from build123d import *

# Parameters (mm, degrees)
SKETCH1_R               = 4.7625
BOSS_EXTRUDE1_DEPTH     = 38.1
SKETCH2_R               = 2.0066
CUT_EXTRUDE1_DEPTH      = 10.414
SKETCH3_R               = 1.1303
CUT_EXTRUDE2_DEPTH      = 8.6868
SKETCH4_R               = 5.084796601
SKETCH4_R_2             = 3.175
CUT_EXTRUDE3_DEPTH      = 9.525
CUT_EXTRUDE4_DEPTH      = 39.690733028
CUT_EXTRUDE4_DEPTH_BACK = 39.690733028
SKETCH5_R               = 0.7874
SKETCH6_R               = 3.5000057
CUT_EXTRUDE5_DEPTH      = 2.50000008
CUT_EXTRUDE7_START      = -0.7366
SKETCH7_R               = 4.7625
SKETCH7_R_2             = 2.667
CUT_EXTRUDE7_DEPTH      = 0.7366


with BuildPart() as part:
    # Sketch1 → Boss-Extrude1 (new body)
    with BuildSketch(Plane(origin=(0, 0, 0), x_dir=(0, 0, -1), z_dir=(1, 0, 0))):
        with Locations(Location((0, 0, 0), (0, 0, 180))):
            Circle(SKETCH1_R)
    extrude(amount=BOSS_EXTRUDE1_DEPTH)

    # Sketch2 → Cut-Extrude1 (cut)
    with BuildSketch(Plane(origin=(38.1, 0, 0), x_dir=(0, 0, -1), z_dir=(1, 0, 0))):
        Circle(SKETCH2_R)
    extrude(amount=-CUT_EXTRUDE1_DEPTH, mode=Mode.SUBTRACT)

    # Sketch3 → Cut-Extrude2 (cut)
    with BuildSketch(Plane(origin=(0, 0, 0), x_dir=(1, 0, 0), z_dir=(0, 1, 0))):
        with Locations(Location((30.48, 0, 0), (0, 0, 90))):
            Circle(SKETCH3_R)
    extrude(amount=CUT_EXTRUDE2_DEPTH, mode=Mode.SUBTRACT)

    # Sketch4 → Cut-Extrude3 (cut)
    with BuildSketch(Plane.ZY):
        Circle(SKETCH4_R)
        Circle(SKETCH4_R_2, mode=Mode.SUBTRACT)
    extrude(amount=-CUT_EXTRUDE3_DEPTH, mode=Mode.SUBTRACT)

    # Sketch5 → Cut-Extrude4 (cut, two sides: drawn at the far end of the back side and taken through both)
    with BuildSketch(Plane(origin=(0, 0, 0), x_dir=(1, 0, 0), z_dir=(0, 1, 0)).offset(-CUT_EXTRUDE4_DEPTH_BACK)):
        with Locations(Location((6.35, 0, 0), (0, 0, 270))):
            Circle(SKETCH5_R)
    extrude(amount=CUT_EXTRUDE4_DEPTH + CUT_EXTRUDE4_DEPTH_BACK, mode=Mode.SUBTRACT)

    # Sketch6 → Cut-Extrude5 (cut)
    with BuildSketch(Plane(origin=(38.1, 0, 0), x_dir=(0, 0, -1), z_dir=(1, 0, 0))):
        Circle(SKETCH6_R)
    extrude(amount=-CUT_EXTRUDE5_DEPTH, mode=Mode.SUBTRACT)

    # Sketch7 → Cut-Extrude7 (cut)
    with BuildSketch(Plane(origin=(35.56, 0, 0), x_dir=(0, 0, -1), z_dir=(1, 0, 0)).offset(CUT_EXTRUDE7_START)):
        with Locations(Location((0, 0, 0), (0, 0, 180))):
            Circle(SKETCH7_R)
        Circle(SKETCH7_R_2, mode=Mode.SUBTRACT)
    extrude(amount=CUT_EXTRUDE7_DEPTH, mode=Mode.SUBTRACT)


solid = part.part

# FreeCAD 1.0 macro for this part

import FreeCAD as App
import Part
import Sketcher
from FreeCAD import Vector
Q = App.Units.Quantity

doc = App.newDocument("Part")
body = doc.addObject("PartDesign::Body", "Body")

# Sketch on YZ plane
sketch1 = body.newObject("Sketcher::SketchObject", "Sketch")
sketch1.AttachmentSupport = (doc.getObject("YZ_Plane"), [""])
sketch1.MapMode = "FlatFace"
sketch1.addGeometry(Part.Circle(Vector(0, 0, 0), Vector(0, 0, 1), 4.8), False)
sketch1.addConstraint(Sketcher.Constraint("Coincident", 0, 3, -1, 1))
sketch1.addConstraint(Sketcher.Constraint("Diameter", 0, Q("0.375 in")))
pad1 = body.newObject("PartDesign::Pad", "Pad")
pad1.Profile = sketch1
pad1.Length = Q("1.5 in")

# Sketch on YZ plane
sketch2 = body.newObject("Sketcher::SketchObject", "Sketch001")
sketch2.AttachmentSupport = (doc.getObject("YZ_Plane"), [""])
sketch2.MapMode = "FlatFace"
sketch2.AttachmentOffset = App.Placement(Vector(0, 0, 1.5 * 25.4), App.Rotation())
sketch2.addGeometry(Part.Circle(Vector(0, 0, 0), Vector(0, 0, 1), 2), False)
sketch2.addConstraint(Sketcher.Constraint("Coincident", 0, 3, -1, 1))
sketch2.addConstraint(Sketcher.Constraint("Diameter", 0, Q("0.158 in")))
pocket1 = body.newObject("PartDesign::Pocket", "Pocket")
pocket1.Profile = sketch2
pocket1.Length = Q("0.41 in")

# Sketch on XZ plane
sketch3 = body.newObject("Sketcher::SketchObject", "Sketch002")
sketch3.AttachmentSupport = (doc.getObject("XZ_Plane"), [""])
sketch3.MapMode = "FlatFace"
sketch3.addGeometry(Part.Circle(Vector(30.5, 0, 0), Vector(0, 0, 1), 1.1), False)
sketch3.addConstraint(Sketcher.Constraint("PointOnObject", 0, 3, -1))
sketch3.addConstraint(Sketcher.Constraint("Diameter", 0, Q("0.089 in")))
sketch3.addConstraint(Sketcher.Constraint("DistanceX", -1, 1, 0, 3, Q("1.2 in")))
pocket2 = body.newObject("PartDesign::Pocket", "Pocket001")
pocket2.Profile = sketch3
pocket2.Length = Q("0.342 in")

# Sketch on YZ plane
sketch4 = body.newObject("Sketcher::SketchObject", "Sketch003")
sketch4.AttachmentSupport = (doc.getObject("YZ_Plane"), [""])
sketch4.MapMode = "FlatFace"
sketch4.addGeometry(Part.Circle(Vector(0, 0, 0), Vector(0, 0, 1), 5.1), False)
sketch4.addGeometry(Part.Circle(Vector(0, 0, 0), Vector(0, 0, 1), 3.2), False)
sketch4.addConstraint(Sketcher.Constraint("Coincident", 0, 3, -1, 1))
sketch4.addConstraint(Sketcher.Constraint("Coincident", 1, 3, -1, 1))
sketch4.addConstraint(Sketcher.Constraint("Diameter", 1, Q("0.25 in")))
sketch4.addConstraint(Sketcher.Constraint("Diameter", 0, Q("10.169593 mm")))
pocket3 = body.newObject("PartDesign::Pocket", "Pocket002")
pocket3.Profile = sketch4
pocket3.Length = Q("0.375 in")
pocket3.Reversed = True

# Sketch on XZ plane
sketch5 = body.newObject("Sketcher::SketchObject", "Sketch004")
sketch5.AttachmentSupport = (doc.getObject("XZ_Plane"), [""])
sketch5.MapMode = "FlatFace"
sketch5.addGeometry(Part.Circle(Vector(6.3, 0, 0), Vector(0, 0, 1), 0.8), False)
sketch5.addConstraint(Sketcher.Constraint("PointOnObject", 0, 3, -1))
sketch5.addConstraint(Sketcher.Constraint("Diameter", 0, Q("0.062 in")))
sketch5.addConstraint(Sketcher.Constraint("DistanceX", -1, 1, 0, 3, Q("0.25 in")))
pocket4 = body.newObject("PartDesign::Pocket", "Pocket003")
pocket4.Profile = sketch5
pocket4.Type = "ThroughAll"
pocket4.Midplane = True

# Sketch on YZ plane
sketch6 = body.newObject("Sketcher::SketchObject", "Sketch005")
sketch6.AttachmentSupport = (doc.getObject("YZ_Plane"), [""])
sketch6.MapMode = "FlatFace"
sketch6.AttachmentOffset = App.Placement(Vector(0, 0, 1.5 * 25.4), App.Rotation())
sketch6.addGeometry(Part.Circle(Vector(0, 0, 0), Vector(0, 0, 1), 3.5), False)
sketch6.addConstraint(Sketcher.Constraint("Coincident", 0, 3, -1, 1))
sketch6.addConstraint(Sketcher.Constraint("Diameter", 0, Q("7.000011 mm")))
pocket5 = body.newObject("PartDesign::Pocket", "Pocket004")
pocket5.Profile = sketch6
pocket5.Length = 2.5

# Sketch on YZ plane
sketch7 = body.newObject("Sketcher::SketchObject", "Sketch006")
sketch7.AttachmentSupport = (doc.getObject("YZ_Plane"), [""])
sketch7.MapMode = "FlatFace"
sketch7.AttachmentOffset = App.Placement(Vector(0, 0, 1.371 * 25.4), App.Rotation())
sketch7.addGeometry(Part.Circle(Vector(0, 0, 0), Vector(0, 0, 1), 4.8), False)
sketch7.addGeometry(Part.Circle(Vector(0, 0, 0), Vector(0, 0, 1), 2.7), False)
sketch7.addConstraint(Sketcher.Constraint("Coincident", 0, 3, -1, 1))
sketch7.addConstraint(Sketcher.Constraint("Coincident", 1, 3, -1, 1))
sketch7.addConstraint(Sketcher.Constraint("Diameter", 1, Q("0.21 in")))
sketch7.addConstraint(Sketcher.Constraint("Diameter", 0, Q("0.375 in")))
pocket6 = body.newObject("PartDesign::Pocket", "Pocket005")
pocket6.Profile = sketch7
pocket6.Length = Q("0.029 in")
pocket6.Reversed = True

doc.recompute()
